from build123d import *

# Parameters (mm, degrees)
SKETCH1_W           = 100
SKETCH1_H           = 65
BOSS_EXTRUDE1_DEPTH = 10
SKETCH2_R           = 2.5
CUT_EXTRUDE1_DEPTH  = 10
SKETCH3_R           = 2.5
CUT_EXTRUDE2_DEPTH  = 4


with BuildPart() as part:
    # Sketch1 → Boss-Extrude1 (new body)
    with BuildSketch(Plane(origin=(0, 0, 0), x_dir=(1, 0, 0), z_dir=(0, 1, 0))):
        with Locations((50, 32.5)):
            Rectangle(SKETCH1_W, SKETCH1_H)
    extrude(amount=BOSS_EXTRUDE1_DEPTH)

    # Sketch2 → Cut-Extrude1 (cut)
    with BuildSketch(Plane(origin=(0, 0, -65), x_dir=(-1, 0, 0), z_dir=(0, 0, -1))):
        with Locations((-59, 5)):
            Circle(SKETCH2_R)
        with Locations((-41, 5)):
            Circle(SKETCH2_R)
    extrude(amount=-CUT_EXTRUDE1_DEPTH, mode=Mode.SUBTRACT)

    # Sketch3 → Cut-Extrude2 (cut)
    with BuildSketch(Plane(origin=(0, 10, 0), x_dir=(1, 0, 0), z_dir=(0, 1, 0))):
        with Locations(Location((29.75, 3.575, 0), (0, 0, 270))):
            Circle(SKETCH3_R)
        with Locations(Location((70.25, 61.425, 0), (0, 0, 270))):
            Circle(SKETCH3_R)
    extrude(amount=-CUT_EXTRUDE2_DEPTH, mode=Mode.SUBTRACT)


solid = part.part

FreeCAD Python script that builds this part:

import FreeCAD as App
import Part
import Sketcher

V = App.Vector
Q = App.Units.Quantity


def add_polygon(sketch, points):
    """Adds a closed chain of lines whose ends are joined by coincident constraints."""
    first, n = sketch.GeometryCount, len(points)
    for a, b in zip(points, points[1:] + points[:1]):
        sketch.addGeometry(Part.LineSegment(App.Vector(*a, 0), App.Vector(*b, 0)), False)
    for i in range(n):
        sketch.addConstraint(Sketcher.Constraint("Coincident", first + i, 2, first + (i + 1) % n, 1))

doc = App.newDocument("Part")
body = doc.addObject("PartDesign::Body", "Body")

sketch1 = body.newObject("Sketcher::SketchObject", "Sketch")
sketch1.AttachmentSupport = (doc.getObject("XZ_Plane"), [""])
sketch1.MapMode = "FlatFace"
add_polygon(sketch1, [(0, -65), (0, 0), (100, 0), (100, -65)])
sketch1.addConstraint(Sketcher.Constraint("Vertical", 0))
sketch1.addConstraint(Sketcher.Constraint("Horizontal", 1))
sketch1.addConstraint(Sketcher.Constraint("Vertical", 2))
sketch1.addConstraint(Sketcher.Constraint("Horizontal", 3))
sketch1.addConstraint(Sketcher.Constraint("Coincident", 0, 2, -1, 1))
sketch1.addConstraint(Sketcher.Constraint("DistanceX", 1, 1, 1, 2, Q("100 mm")))
sketch1.addConstraint(Sketcher.Constraint("DistanceY", 0, 1, 0, 2, Q("65 mm")))
pad1 = body.newObject("PartDesign::Pad", "Pad")
pad1.Profile = sketch1
pad1.Length = 10
pad1.Reversed = True

sketch2 = body.newObject("Sketcher::SketchObject", "Sketch001")
sketch2.AttachmentSupport = (doc.getObject("XY_Plane"), [""])
sketch2.MapMode = "FlatFace"
sketch2.AttachmentOffset = App.Placement(V(0, 0, -65), App.Rotation())
sketch2.addGeometry(Part.Circle(V(59, 5, 0), V(0, 0, 1), 2.5), False)
sketch2.addGeometry(Part.Circle(V(41, 5, 0), V(0, 0, 1), 2.5), False)
sketch2.addConstraint(Sketcher.Constraint("Equal", 0, 1))
sketch2.addConstraint(Sketcher.Constraint("Horizontal", 0, 3, 1, 3))
sketch2.addConstraint(Sketcher.Constraint("Diameter", 0, Q("5 mm")))
sketch2.addConstraint(Sketcher.Constraint("DistanceX", -1, 1, 0, 3, Q("59 mm")))
sketch2.addConstraint(Sketcher.Constraint("DistanceY", -1, 1, 0, 3, Q("5 mm")))
sketch2.addConstraint(Sketcher.Constraint("DistanceX", -1, 1, 1, 3, Q("41 mm")))
pocket1 = body.newObject("PartDesign::Pocket", "Pocket")
pocket1.Profile = sketch2
pocket1.Length = 10
pocket1.Reversed = True

sketch3 = body.newObject("Sketcher::SketchObject", "Sketch002")
sketch3.AttachmentSupport = (doc.getObject("XZ_Plane"), [""])
sketch3.MapMode = "FlatFace"
sketch3.AttachmentOffset = App.Placement(V(0, 0, -10), App.Rotation())
sketch3.addGeometry(Part.Circle(V(29.8, -3.6, 0), V(0, 0, 1), 2.5), False)
sketch3.addGeometry(Part.Circle(V(70.2, -61.4, 0), V(0, 0, 1), 2.5), False)
sketch3.addConstraint(Sketcher.Constraint("Equal", 0, 1))
sketch3.addConstraint(Sketcher.Constraint("Diameter", 0, Q("5 mm")))
sketch3.addConstraint(Sketcher.Constraint("DistanceX", 0, 3, 1, 3, Q("40.5 mm")))
sketch3.addConstraint(Sketcher.Constraint("DistanceX", -1, 1, 0, 3, Q("29.75 mm")))
sketch3.addConstraint(Sketcher.Constraint("DistanceY", 1, 3, 0, 3, Q("57.85 mm")))
sketch3.addConstraint(Sketcher.Constraint("DistanceY", 0, 3, -1, 1, Q("3.575 mm")))
pocket2 = body.newObject("PartDesign::Pocket", "Pocket001")
pocket2.Profile = sketch3
pocket2.Length = 4
pocket2.Reversed = True

doc.recompute()
